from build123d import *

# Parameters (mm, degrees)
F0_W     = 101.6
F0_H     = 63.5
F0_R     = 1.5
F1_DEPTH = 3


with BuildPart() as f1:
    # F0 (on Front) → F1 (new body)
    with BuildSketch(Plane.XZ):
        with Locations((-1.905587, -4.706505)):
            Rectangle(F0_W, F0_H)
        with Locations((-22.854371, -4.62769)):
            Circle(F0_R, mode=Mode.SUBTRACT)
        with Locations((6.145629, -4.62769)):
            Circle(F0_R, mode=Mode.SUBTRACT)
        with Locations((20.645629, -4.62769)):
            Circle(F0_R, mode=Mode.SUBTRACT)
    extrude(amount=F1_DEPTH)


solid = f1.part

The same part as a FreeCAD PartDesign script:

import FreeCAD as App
import Part
import Sketcher
Q = App.Units.Quantity


def add_polygon(sketch, points):
    """Adds a closed chain of lines whose ends are joined by coincident constraints."""
    first, n = sketch.GeometryCount, len(points)
    for a, b in zip(points, points[1:] + points[:1]):
        sketch.addGeometry(Part.LineSegment(App.Vector(*a, 0), App.Vector(*b, 0)), False)
    for i in range(n):
        sketch.addConstraint(Sketcher.Constraint("Coincident", first + i, 2, first + (i + 1) % n, 1))

doc = App.newDocument("Part")
params = doc.addObject("Spreadsheet::Sheet", "Params")
for row, (alias, value) in enumerate([
    ("sketch1_width", "4 in"),
    ("sketch1_height", "2.5 in"),
    ("pad1_length", "3 mm"),
], start=1):
    params.set(f"A{row}", alias)
    params.set(f"B{row}", "=" + value)
    params.setAlias(f"B{row}", alias)

body = doc.addObject("PartDesign::Body", "Body")

# Sketch on XZ plane
sketch1 = doc.addObject("Sketcher::SketchObject", "Sketch")
body.addObject(sketch1)
sketch1.AttachmentSupport = (doc.XZ_Plane, [""])
sketch1.MapMode = "FlatFace"
add_polygon(sketch1, [(-52.7, 27), (-52.7, -36.5), (48.9, -36.5), (48.9, 27)])  # lines 0-3
sketch1.addGeometry(Part.Circle(App.Vector(-22.9, -4.6, 0), App.Vector(0, 0, 1), 1.5), False)  # 4
sketch1.addGeometry(Part.Circle(App.Vector(6.1, -4.6, 0), App.Vector(0, 0, 1), 1.5), False)  # 5
sketch1.addGeometry(Part.Circle(App.Vector(20.6, -4.6, 0), App.Vector(0, 0, 1), 1.5), False)  # 6
sketch1.addConstraint(Sketcher.Constraint("Vertical", 0))
sketch1.addConstraint(Sketcher.Constraint("Horizontal", 1))
sketch1.addConstraint(Sketcher.Constraint("Vertical", 2))
sketch1.addConstraint(Sketcher.Constraint("Horizontal", 3))
sketch1.addConstraint(Sketcher.Constraint("Equal", 4, 5))
sketch1.addConstraint(Sketcher.Constraint("Equal", 5, 6))
sketch1.addConstraint(Sketcher.Constraint("Horizontal", 4, 3, 5, 3))
sketch1.addConstraint(Sketcher.Constraint("Horizontal", 5, 3, 6, 3))
sketch1.addConstraint(Sketcher.Constraint("DistanceX", 1, 1, 1, 2, Q("4 in")))
sketch1.addConstraint(Sketcher.Constraint("DistanceY", 0, 2, 0, 1, Q("2.5 in")))
sketch1.addConstraint(Sketcher.Constraint("Diameter", 4, Q("3 mm")))
sketch1.addConstraint(Sketcher.Constraint("DistanceX", 4, 3, 5, 3, Q("29 mm")))
sketch1.addConstraint(Sketcher.Constraint("DistanceX", 5, 3, 6, 3, Q("14.5 mm")))
sketch1.addConstraint(Sketcher.Constraint("DistanceX", 4, 3, -1, 1, Q("22.854371 mm")))
sketch1.addConstraint(Sketcher.Constraint("DistanceY", 4, 3, -1, 1, Q("4.62769 mm")))
sketch1.addConstraint(Sketcher.Constraint("DistanceX", 0, 2, -1, 1, Q("52.705587 mm")))
sketch1.addConstraint(Sketcher.Constraint("DistanceY", 0, 2, -1, 1, Q("36.456505 mm")))
sketch1.setExpression("Constraints[12]", "Params.sketch1_width")
sketch1.setExpression("Constraints[13]", "Params.sketch1_height")
pad1 = doc.addObject("PartDesign::Pad", "Pad")
body.addObject(pad1)
pad1.Profile = sketch1
pad1.setExpression("Length", "Params.pad1_length")

doc.recompute()
